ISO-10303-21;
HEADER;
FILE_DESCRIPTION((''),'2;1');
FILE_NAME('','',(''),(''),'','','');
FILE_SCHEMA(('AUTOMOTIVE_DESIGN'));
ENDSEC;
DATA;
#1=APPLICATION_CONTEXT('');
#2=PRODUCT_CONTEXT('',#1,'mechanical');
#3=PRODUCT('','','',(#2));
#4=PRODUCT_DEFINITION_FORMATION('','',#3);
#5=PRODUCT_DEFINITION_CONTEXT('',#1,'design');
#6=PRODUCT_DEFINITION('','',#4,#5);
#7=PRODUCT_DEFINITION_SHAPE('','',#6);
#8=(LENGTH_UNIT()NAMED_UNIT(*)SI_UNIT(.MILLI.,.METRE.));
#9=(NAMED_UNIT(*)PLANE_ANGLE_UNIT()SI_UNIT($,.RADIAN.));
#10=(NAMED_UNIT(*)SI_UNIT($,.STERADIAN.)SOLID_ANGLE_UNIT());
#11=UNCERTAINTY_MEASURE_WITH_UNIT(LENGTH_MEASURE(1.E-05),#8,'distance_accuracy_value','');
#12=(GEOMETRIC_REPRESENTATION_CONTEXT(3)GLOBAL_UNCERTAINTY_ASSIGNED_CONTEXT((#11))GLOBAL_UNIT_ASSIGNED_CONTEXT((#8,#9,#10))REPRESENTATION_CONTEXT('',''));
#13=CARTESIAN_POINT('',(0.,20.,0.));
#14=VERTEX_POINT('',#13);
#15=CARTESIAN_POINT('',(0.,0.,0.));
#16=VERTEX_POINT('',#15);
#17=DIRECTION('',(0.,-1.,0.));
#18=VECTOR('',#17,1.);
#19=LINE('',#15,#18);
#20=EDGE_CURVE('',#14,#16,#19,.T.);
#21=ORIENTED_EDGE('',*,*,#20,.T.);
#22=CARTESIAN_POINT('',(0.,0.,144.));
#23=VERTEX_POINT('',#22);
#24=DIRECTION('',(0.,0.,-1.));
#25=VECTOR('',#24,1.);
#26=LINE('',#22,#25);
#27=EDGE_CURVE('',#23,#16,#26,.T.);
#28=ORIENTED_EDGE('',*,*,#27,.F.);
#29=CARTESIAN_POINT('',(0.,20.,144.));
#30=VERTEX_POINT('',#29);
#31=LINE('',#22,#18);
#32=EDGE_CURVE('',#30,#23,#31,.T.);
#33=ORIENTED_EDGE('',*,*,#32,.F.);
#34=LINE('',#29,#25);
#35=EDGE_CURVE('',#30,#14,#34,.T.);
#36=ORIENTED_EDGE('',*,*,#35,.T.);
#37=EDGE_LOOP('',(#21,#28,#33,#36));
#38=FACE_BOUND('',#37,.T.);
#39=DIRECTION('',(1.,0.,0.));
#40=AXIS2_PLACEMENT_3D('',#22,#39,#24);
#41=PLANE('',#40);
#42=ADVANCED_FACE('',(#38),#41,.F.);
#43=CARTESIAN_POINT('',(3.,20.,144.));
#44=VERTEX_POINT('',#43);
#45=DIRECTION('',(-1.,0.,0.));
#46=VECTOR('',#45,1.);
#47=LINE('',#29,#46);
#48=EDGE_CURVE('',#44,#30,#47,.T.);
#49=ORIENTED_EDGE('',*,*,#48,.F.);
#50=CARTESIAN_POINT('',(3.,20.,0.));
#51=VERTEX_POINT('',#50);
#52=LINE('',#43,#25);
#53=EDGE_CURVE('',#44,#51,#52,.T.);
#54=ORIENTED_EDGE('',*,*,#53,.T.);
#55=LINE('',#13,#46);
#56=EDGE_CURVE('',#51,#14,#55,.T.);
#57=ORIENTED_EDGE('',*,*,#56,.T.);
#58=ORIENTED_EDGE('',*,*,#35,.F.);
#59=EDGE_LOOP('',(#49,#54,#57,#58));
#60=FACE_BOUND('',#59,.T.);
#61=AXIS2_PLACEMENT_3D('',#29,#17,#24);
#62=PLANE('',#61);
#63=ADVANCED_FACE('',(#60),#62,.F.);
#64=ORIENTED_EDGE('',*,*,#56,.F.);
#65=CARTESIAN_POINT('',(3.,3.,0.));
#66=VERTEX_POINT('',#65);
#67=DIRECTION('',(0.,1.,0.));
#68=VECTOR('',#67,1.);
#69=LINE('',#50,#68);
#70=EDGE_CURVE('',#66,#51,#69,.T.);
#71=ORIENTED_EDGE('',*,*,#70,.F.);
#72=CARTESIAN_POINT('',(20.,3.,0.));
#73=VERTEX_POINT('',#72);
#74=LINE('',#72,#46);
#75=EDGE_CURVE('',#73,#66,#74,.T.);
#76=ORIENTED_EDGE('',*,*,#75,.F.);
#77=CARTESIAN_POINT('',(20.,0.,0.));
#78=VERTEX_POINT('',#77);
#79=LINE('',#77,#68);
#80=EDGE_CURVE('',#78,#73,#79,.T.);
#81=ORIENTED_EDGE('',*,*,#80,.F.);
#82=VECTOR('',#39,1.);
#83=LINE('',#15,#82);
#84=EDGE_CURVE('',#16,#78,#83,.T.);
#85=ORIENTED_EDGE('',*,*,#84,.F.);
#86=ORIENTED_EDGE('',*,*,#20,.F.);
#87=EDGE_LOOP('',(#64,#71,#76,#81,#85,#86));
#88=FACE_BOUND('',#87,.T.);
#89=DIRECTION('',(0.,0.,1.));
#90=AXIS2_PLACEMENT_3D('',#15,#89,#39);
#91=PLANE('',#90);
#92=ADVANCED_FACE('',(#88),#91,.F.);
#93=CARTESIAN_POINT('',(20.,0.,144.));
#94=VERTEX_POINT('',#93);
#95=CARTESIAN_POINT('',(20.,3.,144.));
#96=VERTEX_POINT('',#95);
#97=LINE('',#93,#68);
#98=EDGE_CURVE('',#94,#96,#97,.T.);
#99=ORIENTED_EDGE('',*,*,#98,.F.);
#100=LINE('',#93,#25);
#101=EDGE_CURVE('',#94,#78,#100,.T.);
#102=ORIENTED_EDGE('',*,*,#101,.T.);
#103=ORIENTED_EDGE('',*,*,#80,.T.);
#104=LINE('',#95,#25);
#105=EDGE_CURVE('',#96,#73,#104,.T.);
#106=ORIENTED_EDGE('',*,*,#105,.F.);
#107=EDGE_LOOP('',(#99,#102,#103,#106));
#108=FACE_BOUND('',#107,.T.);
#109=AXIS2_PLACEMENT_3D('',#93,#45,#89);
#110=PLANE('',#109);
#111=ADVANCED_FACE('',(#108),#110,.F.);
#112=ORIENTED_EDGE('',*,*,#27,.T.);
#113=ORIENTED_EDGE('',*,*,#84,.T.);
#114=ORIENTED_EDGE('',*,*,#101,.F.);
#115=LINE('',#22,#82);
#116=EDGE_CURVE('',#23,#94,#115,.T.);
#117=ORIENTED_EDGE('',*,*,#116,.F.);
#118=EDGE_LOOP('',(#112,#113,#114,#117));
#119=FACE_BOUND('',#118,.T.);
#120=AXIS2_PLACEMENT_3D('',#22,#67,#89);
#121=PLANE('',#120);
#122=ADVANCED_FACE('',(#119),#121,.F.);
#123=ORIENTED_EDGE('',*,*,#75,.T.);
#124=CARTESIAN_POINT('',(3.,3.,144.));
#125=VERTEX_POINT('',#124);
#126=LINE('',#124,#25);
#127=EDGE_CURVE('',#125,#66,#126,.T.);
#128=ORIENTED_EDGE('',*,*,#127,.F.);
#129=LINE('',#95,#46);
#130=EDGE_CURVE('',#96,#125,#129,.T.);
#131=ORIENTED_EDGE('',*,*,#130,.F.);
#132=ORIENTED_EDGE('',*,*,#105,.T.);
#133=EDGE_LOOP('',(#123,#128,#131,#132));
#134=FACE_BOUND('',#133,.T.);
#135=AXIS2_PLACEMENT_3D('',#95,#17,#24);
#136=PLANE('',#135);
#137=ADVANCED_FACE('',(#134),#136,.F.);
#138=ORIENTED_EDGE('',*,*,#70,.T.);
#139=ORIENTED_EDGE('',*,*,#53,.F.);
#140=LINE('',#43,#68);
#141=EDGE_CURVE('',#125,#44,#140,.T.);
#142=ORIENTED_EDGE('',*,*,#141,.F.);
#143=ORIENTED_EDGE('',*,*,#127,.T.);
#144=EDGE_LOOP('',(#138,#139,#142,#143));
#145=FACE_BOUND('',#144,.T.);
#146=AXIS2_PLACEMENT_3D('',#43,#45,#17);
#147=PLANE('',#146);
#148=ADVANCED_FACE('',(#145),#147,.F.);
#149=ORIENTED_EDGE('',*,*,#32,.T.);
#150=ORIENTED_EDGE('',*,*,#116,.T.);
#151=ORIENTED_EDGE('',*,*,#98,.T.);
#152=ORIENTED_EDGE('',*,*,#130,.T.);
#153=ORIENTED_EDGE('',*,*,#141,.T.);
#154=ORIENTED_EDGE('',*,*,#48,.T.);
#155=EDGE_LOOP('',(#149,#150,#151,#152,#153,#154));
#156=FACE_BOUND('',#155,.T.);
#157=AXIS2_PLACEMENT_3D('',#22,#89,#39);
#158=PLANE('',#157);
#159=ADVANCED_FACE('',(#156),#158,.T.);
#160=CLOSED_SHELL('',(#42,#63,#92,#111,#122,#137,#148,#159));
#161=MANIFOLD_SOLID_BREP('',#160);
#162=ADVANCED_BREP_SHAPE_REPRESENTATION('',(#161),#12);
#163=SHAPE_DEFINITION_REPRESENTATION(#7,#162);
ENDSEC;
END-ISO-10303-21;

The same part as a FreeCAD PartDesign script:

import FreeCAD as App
import Part
import Sketcher

V = App.Vector


def add_polygon(sketch, points):
    """Adds a closed chain of lines whose ends are joined by coincident constraints."""
    first, n = sketch.GeometryCount, len(points)
    for a, b in zip(points, points[1:] + points[:1]):
        sketch.addGeometry(Part.LineSegment(App.Vector(*a, 0), App.Vector(*b, 0)), False)
    for i in range(n):
        sketch.addConstraint(Sketcher.Constraint("Coincident", first + i, 2, first + (i + 1) % n, 1))

doc = App.newDocument("Part")
params = doc.addObject("Spreadsheet::Sheet", "Params")
for row, (alias, value) in enumerate([
    ("sketch1_width", "20 mm"),
    ("sketch1_width2", "17 mm"),
    ("pad1_length", "144 mm"),
], start=1):
    params.set(f"A{row}", alias)
    params.set(f"B{row}", "=" + value)
    params.setAlias(f"B{row}", alias)

body = doc.addObject("PartDesign::Body", "Body")

sketch1 = doc.addObject("Sketcher::SketchObject", "Sketch")
body.addObject(sketch1)
sketch1.AttachmentSupport = (doc.XY_Plane, [""])
sketch1.MapMode = "FlatFace"
add_polygon(sketch1, [(0, 0), (20, 0), (20, 3), (3, 3), (3, 20), (0, 20)])
sketch1.addConstraint([
    Sketcher.Constraint("Horizontal", 0),
    Sketcher.Constraint("Vertical", 1),
    Sketcher.Constraint("Horizontal", 2),
    Sketcher.Constraint("Vertical", 3),
    Sketcher.Constraint("Horizontal", 4),
    Sketcher.Constraint("Vertical", 5),
    Sketcher.Constraint("Coincident", 5, 2, -1, 1),
    Sketcher.Constraint("Equal", 4, 1),
    Sketcher.Constraint("Equal", 2, 3),
    Sketcher.Constraint("DistanceX", 0, 1, 0, 2, 20.0),
    Sketcher.Constraint("DistanceX", 2, 2, 2, 1, 17.0),
])
sketch1.setExpression("Constraints[15]", "Params.sketch1_width")
sketch1.setExpression("Constraints[16]", "Params.sketch1_width2")
pad1 = doc.addObject("PartDesign::Pad", "Pad")
body.addObject(pad1)
pad1.Profile = sketch1
pad1.setExpression("Length", "Params.pad1_length")

doc.recompute()
